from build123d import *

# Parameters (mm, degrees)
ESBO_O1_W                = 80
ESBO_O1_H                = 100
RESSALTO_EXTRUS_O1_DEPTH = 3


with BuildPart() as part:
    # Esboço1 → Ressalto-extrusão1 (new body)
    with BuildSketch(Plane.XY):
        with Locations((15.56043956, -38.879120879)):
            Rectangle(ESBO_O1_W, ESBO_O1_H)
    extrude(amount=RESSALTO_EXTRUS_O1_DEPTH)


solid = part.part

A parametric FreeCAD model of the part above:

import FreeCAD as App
import Part
import Sketcher
Q = App.Units.Quantity


def add_polygon(sketch, points):
    """Adds a closed chain of lines whose ends are joined by coincident constraints."""
    first, n = sketch.GeometryCount, len(points)
    for a, b in zip(points, points[1:] + points[:1]):
        sketch.addGeometry(Part.LineSegment(App.Vector(*a, 0), App.Vector(*b, 0)), False)
    for i in range(n):
        sketch.addConstraint(Sketcher.Constraint("Coincident", first + i, 2, first + (i + 1) % n, 1))

doc = App.newDocument("Part")
params = doc.addObject("Spreadsheet::Sheet", "Params")
for row, (alias, value) in enumerate([
    ("sketch1_width", "80 mm"),
    ("sketch1_height", "100 mm"),
    ("pad1_length", "3 mm"),
], start=1):
    params.set(f"A{row}", alias)
    params.set(f"B{row}", "=" + value)
    params.setAlias(f"B{row}", alias)

body = doc.addObject("PartDesign::Body", "Body")

# Sketch on XY plane
sketch1 = body.newObject("Sketcher::SketchObject", "Sketch")
sketch1.AttachmentSupport = (doc.getObject("XY_Plane"), [""])
sketch1.MapMode = "FlatFace"
add_polygon(sketch1, [(-24, 11), (-24, -89), (56, -89), (56, 11)])  # lines 0-3
sketch1.addConstraint([
    Sketcher.Constraint("Vertical", 0),
    Sketcher.Constraint("Horizontal", 1),
    Sketcher.Constraint("Vertical", 2),
    Sketcher.Constraint("Horizontal", 3),
    Sketcher.Constraint("DistanceX", 1, 1, 1, 2, Q("80 mm")),
    Sketcher.Constraint("DistanceY", 0, 2, 0, 1, Q("100 mm")),
    Sketcher.Constraint("DistanceX", 0, 2, -1, 1, Q("24.43956 mm")),
    Sketcher.Constraint("DistanceY", 0, 2, -1, 1, Q("88.879121 mm")),
])
sketch1.setExpression("Constraints[8]", "Params.sketch1_width")
sketch1.setExpression("Constraints[9]", "Params.sketch1_height")
pad1 = body.newObject("PartDesign::Pad", "Pad")
pad1.Profile = sketch1
pad1.setExpression("Length", "Params.pad1_length")

doc.recompute()
